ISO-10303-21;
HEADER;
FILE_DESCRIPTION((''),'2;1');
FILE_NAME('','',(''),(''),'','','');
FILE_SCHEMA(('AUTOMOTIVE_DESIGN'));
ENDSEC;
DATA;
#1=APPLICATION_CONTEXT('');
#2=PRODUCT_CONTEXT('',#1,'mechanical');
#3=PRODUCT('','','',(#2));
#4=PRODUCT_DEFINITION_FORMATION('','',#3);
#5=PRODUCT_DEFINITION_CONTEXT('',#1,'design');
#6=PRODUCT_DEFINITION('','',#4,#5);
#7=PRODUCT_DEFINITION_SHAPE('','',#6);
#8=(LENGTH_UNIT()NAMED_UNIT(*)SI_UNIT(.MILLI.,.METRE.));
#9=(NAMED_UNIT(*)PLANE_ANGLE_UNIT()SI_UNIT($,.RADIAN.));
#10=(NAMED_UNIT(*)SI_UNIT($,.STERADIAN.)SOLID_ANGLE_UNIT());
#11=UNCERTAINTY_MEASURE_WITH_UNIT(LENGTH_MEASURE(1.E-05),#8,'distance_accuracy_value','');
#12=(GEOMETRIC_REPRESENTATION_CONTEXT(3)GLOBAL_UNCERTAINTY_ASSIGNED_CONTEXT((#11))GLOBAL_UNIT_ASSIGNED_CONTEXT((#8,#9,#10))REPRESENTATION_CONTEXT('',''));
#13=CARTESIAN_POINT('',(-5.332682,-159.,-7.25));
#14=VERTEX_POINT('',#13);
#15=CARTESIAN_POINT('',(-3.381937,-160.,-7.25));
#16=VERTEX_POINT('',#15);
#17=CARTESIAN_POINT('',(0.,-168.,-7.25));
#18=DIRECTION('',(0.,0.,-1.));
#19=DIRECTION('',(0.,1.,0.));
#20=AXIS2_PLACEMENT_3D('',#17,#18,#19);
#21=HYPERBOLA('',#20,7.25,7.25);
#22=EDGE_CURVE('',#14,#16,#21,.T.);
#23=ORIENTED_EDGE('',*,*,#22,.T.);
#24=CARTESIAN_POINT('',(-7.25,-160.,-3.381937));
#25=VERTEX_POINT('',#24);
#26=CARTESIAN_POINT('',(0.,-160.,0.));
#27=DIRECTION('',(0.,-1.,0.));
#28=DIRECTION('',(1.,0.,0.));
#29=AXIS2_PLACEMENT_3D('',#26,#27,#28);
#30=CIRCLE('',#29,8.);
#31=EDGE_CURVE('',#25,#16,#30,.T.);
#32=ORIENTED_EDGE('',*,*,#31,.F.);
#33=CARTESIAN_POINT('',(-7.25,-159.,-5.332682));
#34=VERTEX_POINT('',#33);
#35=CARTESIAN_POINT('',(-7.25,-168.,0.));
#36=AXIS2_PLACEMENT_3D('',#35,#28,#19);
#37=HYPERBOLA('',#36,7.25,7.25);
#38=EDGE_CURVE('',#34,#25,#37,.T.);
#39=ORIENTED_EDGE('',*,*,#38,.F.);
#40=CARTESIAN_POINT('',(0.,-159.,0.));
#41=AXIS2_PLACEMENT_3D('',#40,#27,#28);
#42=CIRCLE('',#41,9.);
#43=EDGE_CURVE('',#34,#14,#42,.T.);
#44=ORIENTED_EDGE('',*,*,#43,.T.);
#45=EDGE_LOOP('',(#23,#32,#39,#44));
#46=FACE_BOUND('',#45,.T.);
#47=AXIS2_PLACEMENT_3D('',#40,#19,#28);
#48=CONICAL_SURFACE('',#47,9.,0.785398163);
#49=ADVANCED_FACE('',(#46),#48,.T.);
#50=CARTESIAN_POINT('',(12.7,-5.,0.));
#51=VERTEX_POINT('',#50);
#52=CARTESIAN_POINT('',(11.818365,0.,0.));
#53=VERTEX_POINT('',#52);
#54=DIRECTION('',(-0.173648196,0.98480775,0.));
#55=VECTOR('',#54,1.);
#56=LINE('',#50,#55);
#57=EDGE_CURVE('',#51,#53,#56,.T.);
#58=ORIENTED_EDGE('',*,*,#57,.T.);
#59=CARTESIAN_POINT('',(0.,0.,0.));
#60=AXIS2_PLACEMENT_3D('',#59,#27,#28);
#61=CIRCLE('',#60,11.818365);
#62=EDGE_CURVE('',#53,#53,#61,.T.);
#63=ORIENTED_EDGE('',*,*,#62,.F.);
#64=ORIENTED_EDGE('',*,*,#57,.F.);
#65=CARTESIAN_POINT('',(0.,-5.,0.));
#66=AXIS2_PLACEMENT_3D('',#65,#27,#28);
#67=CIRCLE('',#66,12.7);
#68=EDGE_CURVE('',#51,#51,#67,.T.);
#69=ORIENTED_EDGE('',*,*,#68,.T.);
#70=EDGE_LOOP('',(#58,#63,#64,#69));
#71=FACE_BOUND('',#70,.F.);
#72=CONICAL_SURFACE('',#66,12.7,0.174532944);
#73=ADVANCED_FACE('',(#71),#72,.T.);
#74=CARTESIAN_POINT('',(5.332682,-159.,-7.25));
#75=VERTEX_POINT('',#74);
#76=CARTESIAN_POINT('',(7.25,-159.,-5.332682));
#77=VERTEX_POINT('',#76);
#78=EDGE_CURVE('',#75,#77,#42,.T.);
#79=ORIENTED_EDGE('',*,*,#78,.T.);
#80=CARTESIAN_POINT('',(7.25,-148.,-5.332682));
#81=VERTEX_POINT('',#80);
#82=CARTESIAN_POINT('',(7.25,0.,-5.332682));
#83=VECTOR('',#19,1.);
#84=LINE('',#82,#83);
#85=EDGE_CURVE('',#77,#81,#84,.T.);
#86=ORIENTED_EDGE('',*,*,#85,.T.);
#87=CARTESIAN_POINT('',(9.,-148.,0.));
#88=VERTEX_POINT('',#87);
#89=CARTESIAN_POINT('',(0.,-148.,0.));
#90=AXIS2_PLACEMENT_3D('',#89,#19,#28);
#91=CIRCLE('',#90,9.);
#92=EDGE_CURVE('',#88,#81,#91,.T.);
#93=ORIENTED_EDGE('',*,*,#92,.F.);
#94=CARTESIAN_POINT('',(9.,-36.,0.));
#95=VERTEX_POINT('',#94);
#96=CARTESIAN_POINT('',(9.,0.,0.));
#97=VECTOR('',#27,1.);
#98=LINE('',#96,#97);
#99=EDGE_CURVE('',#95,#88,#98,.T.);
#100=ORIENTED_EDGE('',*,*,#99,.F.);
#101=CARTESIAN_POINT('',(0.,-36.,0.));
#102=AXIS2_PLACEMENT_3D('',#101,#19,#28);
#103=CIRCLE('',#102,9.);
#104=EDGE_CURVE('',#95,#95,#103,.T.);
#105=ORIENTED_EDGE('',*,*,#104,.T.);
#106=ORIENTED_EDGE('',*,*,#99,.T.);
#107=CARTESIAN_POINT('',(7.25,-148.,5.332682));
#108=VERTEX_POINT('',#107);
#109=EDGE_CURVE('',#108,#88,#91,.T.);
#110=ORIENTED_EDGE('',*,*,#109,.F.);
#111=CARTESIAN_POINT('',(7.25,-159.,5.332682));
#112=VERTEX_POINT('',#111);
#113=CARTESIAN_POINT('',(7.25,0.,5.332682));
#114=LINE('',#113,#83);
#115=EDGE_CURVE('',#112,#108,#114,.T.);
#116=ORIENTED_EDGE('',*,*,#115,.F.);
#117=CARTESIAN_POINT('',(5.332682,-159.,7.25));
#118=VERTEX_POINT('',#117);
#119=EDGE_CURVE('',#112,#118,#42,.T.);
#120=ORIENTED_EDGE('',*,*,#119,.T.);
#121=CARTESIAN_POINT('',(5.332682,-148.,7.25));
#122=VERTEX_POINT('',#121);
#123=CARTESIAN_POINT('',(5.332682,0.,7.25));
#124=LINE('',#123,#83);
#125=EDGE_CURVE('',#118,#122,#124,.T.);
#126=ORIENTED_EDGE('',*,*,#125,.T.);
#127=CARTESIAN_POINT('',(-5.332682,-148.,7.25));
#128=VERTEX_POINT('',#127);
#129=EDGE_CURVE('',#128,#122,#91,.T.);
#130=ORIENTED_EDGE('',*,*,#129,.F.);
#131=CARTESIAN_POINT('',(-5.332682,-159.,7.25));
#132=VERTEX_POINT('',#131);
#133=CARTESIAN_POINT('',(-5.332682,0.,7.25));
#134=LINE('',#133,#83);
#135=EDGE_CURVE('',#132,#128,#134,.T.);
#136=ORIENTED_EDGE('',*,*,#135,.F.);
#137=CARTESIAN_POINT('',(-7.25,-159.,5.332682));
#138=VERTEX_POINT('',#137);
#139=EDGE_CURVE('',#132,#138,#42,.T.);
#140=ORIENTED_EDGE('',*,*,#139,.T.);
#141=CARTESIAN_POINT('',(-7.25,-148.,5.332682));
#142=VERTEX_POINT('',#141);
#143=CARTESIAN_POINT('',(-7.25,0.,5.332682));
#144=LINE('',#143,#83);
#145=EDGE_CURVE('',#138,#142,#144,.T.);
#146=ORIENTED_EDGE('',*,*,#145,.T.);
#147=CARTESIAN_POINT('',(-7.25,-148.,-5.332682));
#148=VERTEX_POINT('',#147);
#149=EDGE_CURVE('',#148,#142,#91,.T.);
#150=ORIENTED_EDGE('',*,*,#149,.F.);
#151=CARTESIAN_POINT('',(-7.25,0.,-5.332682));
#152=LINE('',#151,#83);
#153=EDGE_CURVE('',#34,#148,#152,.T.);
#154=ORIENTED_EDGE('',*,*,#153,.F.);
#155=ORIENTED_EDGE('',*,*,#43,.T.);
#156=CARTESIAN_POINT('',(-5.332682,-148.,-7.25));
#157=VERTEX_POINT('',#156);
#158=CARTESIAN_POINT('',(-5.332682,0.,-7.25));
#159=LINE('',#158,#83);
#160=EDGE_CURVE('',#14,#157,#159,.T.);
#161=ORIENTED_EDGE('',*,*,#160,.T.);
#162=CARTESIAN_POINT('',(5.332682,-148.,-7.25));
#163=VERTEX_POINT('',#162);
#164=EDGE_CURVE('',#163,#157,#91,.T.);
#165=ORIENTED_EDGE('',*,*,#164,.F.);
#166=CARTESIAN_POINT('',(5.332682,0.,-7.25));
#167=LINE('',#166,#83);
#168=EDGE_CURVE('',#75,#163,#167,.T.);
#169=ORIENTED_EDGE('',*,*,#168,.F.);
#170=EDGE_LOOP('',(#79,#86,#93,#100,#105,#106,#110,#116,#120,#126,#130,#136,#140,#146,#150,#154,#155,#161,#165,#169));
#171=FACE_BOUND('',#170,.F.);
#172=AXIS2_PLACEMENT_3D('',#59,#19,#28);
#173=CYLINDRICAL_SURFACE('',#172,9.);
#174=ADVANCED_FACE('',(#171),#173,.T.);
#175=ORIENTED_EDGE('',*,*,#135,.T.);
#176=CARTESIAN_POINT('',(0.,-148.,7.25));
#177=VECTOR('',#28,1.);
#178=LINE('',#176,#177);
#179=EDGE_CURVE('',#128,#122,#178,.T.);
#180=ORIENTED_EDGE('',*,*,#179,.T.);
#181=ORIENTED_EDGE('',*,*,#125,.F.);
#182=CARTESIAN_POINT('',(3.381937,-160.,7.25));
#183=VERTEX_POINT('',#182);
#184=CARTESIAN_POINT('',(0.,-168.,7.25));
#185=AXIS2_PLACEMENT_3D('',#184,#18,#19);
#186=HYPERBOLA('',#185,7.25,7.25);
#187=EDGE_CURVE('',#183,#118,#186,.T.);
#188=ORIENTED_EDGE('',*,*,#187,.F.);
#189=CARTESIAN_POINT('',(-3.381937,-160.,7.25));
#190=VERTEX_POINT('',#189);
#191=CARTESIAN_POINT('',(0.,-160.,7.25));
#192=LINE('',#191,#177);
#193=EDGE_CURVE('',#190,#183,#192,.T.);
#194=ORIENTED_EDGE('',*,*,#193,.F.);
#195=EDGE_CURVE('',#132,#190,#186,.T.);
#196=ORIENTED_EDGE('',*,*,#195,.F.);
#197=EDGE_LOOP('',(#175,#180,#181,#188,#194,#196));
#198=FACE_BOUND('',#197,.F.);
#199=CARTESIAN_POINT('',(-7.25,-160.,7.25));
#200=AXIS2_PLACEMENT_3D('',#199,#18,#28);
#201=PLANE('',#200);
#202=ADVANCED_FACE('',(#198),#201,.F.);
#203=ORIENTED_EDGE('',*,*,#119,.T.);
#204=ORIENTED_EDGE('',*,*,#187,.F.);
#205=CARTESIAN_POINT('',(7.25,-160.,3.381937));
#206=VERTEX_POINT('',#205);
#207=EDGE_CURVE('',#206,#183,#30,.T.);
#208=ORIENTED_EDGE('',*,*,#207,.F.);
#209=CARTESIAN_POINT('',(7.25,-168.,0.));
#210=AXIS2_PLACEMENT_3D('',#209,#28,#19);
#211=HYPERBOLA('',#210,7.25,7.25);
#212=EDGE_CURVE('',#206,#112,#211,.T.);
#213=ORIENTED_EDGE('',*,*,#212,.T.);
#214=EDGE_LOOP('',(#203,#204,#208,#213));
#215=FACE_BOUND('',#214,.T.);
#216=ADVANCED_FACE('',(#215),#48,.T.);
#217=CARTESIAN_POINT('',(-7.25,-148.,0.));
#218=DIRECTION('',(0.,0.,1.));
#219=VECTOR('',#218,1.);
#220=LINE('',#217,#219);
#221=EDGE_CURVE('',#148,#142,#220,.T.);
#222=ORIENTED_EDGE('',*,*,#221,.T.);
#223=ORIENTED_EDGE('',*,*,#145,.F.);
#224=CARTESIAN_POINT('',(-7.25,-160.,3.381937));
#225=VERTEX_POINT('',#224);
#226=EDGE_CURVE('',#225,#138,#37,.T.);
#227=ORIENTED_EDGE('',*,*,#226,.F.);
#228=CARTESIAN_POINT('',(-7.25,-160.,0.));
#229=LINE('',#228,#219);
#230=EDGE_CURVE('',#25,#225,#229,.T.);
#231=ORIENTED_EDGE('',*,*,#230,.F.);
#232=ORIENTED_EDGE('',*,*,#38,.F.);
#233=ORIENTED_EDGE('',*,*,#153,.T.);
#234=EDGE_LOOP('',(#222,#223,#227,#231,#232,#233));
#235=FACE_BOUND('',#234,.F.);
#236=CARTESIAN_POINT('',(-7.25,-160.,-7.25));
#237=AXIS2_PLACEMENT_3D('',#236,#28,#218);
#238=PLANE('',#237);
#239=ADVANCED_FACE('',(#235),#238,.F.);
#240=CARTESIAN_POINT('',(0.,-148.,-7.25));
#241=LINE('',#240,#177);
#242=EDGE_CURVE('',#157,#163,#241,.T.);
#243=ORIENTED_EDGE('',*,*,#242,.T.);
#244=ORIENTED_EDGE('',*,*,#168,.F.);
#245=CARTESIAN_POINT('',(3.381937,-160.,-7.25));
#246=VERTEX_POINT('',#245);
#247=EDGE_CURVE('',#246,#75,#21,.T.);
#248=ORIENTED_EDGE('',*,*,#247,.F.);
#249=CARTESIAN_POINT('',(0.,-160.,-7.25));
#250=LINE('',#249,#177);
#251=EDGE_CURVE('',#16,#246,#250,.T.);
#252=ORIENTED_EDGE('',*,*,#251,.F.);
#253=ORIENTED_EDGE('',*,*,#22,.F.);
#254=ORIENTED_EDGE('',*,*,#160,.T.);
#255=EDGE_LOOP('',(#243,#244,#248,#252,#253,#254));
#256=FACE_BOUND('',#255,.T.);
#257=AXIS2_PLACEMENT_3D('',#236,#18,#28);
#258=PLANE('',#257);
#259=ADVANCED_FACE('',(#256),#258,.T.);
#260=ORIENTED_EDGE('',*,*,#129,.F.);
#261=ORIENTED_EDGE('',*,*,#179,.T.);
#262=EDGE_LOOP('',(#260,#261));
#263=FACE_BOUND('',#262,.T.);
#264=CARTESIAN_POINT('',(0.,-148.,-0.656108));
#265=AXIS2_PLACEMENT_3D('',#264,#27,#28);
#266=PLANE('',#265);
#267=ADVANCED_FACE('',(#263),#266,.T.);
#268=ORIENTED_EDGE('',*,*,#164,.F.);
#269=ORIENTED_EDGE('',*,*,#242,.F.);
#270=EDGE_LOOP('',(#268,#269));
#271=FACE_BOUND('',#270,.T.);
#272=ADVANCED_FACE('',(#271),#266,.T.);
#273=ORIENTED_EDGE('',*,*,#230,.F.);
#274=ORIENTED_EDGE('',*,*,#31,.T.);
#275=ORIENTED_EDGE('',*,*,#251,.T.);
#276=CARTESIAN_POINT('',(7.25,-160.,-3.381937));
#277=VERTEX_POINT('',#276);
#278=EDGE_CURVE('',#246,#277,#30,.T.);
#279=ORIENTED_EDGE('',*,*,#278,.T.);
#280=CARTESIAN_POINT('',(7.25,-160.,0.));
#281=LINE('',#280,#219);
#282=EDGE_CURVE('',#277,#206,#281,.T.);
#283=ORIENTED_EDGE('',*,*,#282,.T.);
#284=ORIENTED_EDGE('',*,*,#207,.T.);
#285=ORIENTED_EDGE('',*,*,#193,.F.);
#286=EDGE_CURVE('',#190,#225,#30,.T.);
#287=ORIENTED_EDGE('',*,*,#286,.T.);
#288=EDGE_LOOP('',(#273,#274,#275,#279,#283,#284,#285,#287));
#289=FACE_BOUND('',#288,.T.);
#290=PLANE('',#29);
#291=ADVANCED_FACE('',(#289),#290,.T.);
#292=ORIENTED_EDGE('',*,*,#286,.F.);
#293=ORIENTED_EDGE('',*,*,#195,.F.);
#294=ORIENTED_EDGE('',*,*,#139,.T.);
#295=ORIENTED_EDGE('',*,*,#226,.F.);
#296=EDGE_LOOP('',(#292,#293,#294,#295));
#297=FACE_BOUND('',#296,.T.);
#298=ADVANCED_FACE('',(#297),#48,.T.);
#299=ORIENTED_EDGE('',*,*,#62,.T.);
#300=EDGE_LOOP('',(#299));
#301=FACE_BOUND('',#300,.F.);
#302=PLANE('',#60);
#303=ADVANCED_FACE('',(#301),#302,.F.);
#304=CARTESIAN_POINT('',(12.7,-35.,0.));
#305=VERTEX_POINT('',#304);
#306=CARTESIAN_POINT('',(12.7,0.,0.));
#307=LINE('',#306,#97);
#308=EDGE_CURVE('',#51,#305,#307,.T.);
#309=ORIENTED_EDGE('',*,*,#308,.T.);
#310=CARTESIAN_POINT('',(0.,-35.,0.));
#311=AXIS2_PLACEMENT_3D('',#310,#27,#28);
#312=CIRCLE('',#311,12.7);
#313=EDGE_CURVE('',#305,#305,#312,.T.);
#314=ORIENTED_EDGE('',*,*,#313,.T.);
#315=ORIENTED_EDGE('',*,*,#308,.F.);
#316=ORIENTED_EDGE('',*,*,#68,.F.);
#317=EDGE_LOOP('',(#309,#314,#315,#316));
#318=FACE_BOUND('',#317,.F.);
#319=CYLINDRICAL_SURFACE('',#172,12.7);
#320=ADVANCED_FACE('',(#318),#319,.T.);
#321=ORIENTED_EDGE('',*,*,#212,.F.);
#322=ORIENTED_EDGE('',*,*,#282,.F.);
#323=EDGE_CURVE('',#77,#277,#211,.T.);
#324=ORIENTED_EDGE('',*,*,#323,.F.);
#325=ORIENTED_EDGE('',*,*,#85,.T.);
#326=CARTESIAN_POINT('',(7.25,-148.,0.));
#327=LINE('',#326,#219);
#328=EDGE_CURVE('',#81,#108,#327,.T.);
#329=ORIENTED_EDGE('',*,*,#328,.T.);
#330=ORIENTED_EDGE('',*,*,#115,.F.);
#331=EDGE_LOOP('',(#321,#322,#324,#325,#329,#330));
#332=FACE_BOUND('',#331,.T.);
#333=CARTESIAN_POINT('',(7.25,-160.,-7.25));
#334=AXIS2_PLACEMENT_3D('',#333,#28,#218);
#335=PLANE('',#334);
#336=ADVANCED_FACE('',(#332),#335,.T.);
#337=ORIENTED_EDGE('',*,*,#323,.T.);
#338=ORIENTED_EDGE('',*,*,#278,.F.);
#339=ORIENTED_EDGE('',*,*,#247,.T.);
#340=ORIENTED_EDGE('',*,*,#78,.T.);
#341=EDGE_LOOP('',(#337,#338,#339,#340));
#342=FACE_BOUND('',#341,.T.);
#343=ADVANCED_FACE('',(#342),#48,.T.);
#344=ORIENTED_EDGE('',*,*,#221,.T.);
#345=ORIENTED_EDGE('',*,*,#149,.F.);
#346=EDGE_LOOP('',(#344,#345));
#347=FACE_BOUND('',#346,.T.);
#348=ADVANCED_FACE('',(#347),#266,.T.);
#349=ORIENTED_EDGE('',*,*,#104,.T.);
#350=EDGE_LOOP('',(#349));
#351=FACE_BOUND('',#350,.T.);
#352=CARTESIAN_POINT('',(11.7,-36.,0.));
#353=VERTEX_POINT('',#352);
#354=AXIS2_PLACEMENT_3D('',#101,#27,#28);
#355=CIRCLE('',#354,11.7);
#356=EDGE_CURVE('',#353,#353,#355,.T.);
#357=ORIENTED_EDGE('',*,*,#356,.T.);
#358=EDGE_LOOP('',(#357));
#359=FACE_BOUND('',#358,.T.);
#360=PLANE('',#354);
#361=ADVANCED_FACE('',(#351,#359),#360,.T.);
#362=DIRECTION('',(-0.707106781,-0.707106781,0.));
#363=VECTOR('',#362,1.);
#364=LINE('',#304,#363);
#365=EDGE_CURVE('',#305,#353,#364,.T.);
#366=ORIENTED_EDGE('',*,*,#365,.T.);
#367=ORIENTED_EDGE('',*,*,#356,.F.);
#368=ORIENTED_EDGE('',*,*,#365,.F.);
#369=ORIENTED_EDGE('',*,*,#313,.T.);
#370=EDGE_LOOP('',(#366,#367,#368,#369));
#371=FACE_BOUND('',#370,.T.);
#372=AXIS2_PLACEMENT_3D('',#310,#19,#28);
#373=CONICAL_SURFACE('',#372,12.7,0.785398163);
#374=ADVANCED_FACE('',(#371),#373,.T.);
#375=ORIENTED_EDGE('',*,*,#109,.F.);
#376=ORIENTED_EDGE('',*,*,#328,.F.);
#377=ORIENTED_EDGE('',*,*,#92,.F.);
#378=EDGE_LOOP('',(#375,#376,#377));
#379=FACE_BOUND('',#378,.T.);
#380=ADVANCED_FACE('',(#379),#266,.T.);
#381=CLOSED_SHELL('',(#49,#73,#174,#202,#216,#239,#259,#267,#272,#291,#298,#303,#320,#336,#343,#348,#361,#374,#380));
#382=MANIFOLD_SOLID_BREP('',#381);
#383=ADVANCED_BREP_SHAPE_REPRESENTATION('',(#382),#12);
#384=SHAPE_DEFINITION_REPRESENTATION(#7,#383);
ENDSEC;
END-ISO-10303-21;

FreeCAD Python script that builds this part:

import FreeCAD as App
import Part
import Sketcher

V = App.Vector
Q = App.Units.Quantity


def edges_at(feature, points):
    """Names of the edges that pass closest to the given points."""
    edges = feature.Shape.Edges
    near = lambda p: min(range(len(edges)), key=lambda i: edges[i].distToShape(Part.Vertex(*p))[0])
    return sorted({f"Edge{near(p) + 1}" for p in points})

doc = App.newDocument("Part")
body = doc.addObject("PartDesign::Body", "Body")

sketch1 = body.newObject("Sketcher::SketchObject", "Sketch")
sketch1.AttachmentSupport = (doc.getObject("XZ_Plane"), [""])
sketch1.MapMode = "FlatFace"
sketch1.addGeometry(Part.Circle(V(0, 0, 0), V(0, 0, 1), 9), False)
sketch1.addConstraint([
    Sketcher.Constraint("Coincident", 0, 3, -1, 1),
    Sketcher.Constraint("Diameter", 0, Q("18 mm")),
])
pad1 = body.newObject("PartDesign::Pad", "Pad")
pad1.Profile = sketch1
pad1.Length = 160

sketch2 = body.newObject("Sketcher::SketchObject", "Sketch001")
sketch2.AttachmentSupport = (doc.getObject("XZ_Plane"), [""])
sketch2.MapMode = "FlatFace"
sketch2.addGeometry(Part.Circle(V(0, 0, 0), V(0, 0, 1), 13), False)
sketch2.addConstraint([
    Sketcher.Constraint("Coincident", 0, 3, -1, 1),
    Sketcher.Constraint("Diameter", 0, Q("25.4 mm")),
])
pad2 = body.newObject("PartDesign::Pad", "Pad001")
pad2.Profile = sketch2
pad2.Length = 36
doc.recompute()

chamfer = body.newObject("PartDesign::Chamfer", "Chamfer")
chamfer.Base = (pad2, edges_at(pad2, [(-12.7, 0, 0)]))
chamfer.ChamferType = "Two distances"
chamfer.Size = 5
chamfer.Size2 = 0.881635
doc.recompute()

chamfer2 = body.newObject("PartDesign::Chamfer", "Chamfer001")
chamfer2.Base = (chamfer, edges_at(chamfer, [(-12.7, -36, 0), (-9, -160, 0)]))
chamfer2.Size = 1

sketch3 = body.newObject("Sketcher::SketchObject", "Sketch002")
sketch3.AttachmentSupport = (doc.getObject("XZ_Plane"), [""])
sketch3.MapMode = "FlatFace"
sketch3.AttachmentOffset = App.Placement(V(0, 0, 160), App.Rotation())
sketch3.addGeometry([
    Part.LineSegment(V(-9, 10, 0), V(-9, -11, 0)),
    Part.LineSegment(V(-9, -11, 0), V(9, -11, 0)),
    Part.LineSegment(V(9, -11, 0), V(9, 10, 0)),
    Part.LineSegment(V(9, 10, 0), V(-9, 10, 0)),
    Part.LineSegment(V(7, -7, 0), V(-7, -7, 0)),
    Part.LineSegment(V(-7, -7, 0), V(-7, 7, 0)),
    Part.LineSegment(V(-7, 7, 0), V(7, 7, 0)),
    Part.LineSegment(V(7, 7, 0), V(7, -7, 0)),
], False)
sketch3.addConstraint([
    Sketcher.Constraint("Coincident", 0, 2, 1, 1),
    Sketcher.Constraint("Coincident", 1, 2, 2, 1),
    Sketcher.Constraint("Coincident", 2, 2, 3, 1),
    Sketcher.Constraint("Coincident", 3, 2, 0, 1),
    Sketcher.Constraint("Coincident", 4, 2, 5, 1),
    Sketcher.Constraint("Coincident", 5, 2, 6, 1),
    Sketcher.Constraint("Coincident", 6, 2, 7, 1),
    Sketcher.Constraint("Coincident", 7, 2, 4, 1),
    Sketcher.Constraint("Vertical", 0),
    Sketcher.Constraint("Horizontal", 1),
    Sketcher.Constraint("Vertical", 2),
    Sketcher.Constraint("Horizontal", 3),
    Sketcher.Constraint("Horizontal", 4),
    Sketcher.Constraint("Vertical", 5),
    Sketcher.Constraint("Horizontal", 6),
    Sketcher.Constraint("Vertical", 7),
    Sketcher.Constraint("Symmetric", 4, 2, 6, 2, -1, 1),
    Sketcher.Constraint("Equal", 6, 5),
    Sketcher.Constraint("DistanceX", 4, 2, 4, 1, Q("14.5 mm")),
    Sketcher.Constraint("DistanceX", 1, 1, 1, 2, Q("18.961538 mm")),
    Sketcher.Constraint("DistanceY", 0, 2, 0, 1, Q("20.995473 mm")),
    Sketcher.Constraint("DistanceX", 0, 2, -1, 1, Q("9.480769 mm")),
    Sketcher.Constraint("DistanceY", -1, 1, 2, 2, Q("9.841629 mm")),
])
pocket1 = body.newObject("PartDesign::Pocket", "Pocket")
pocket1.Profile = sketch3
pocket1.Length = 12

doc.recompute()
